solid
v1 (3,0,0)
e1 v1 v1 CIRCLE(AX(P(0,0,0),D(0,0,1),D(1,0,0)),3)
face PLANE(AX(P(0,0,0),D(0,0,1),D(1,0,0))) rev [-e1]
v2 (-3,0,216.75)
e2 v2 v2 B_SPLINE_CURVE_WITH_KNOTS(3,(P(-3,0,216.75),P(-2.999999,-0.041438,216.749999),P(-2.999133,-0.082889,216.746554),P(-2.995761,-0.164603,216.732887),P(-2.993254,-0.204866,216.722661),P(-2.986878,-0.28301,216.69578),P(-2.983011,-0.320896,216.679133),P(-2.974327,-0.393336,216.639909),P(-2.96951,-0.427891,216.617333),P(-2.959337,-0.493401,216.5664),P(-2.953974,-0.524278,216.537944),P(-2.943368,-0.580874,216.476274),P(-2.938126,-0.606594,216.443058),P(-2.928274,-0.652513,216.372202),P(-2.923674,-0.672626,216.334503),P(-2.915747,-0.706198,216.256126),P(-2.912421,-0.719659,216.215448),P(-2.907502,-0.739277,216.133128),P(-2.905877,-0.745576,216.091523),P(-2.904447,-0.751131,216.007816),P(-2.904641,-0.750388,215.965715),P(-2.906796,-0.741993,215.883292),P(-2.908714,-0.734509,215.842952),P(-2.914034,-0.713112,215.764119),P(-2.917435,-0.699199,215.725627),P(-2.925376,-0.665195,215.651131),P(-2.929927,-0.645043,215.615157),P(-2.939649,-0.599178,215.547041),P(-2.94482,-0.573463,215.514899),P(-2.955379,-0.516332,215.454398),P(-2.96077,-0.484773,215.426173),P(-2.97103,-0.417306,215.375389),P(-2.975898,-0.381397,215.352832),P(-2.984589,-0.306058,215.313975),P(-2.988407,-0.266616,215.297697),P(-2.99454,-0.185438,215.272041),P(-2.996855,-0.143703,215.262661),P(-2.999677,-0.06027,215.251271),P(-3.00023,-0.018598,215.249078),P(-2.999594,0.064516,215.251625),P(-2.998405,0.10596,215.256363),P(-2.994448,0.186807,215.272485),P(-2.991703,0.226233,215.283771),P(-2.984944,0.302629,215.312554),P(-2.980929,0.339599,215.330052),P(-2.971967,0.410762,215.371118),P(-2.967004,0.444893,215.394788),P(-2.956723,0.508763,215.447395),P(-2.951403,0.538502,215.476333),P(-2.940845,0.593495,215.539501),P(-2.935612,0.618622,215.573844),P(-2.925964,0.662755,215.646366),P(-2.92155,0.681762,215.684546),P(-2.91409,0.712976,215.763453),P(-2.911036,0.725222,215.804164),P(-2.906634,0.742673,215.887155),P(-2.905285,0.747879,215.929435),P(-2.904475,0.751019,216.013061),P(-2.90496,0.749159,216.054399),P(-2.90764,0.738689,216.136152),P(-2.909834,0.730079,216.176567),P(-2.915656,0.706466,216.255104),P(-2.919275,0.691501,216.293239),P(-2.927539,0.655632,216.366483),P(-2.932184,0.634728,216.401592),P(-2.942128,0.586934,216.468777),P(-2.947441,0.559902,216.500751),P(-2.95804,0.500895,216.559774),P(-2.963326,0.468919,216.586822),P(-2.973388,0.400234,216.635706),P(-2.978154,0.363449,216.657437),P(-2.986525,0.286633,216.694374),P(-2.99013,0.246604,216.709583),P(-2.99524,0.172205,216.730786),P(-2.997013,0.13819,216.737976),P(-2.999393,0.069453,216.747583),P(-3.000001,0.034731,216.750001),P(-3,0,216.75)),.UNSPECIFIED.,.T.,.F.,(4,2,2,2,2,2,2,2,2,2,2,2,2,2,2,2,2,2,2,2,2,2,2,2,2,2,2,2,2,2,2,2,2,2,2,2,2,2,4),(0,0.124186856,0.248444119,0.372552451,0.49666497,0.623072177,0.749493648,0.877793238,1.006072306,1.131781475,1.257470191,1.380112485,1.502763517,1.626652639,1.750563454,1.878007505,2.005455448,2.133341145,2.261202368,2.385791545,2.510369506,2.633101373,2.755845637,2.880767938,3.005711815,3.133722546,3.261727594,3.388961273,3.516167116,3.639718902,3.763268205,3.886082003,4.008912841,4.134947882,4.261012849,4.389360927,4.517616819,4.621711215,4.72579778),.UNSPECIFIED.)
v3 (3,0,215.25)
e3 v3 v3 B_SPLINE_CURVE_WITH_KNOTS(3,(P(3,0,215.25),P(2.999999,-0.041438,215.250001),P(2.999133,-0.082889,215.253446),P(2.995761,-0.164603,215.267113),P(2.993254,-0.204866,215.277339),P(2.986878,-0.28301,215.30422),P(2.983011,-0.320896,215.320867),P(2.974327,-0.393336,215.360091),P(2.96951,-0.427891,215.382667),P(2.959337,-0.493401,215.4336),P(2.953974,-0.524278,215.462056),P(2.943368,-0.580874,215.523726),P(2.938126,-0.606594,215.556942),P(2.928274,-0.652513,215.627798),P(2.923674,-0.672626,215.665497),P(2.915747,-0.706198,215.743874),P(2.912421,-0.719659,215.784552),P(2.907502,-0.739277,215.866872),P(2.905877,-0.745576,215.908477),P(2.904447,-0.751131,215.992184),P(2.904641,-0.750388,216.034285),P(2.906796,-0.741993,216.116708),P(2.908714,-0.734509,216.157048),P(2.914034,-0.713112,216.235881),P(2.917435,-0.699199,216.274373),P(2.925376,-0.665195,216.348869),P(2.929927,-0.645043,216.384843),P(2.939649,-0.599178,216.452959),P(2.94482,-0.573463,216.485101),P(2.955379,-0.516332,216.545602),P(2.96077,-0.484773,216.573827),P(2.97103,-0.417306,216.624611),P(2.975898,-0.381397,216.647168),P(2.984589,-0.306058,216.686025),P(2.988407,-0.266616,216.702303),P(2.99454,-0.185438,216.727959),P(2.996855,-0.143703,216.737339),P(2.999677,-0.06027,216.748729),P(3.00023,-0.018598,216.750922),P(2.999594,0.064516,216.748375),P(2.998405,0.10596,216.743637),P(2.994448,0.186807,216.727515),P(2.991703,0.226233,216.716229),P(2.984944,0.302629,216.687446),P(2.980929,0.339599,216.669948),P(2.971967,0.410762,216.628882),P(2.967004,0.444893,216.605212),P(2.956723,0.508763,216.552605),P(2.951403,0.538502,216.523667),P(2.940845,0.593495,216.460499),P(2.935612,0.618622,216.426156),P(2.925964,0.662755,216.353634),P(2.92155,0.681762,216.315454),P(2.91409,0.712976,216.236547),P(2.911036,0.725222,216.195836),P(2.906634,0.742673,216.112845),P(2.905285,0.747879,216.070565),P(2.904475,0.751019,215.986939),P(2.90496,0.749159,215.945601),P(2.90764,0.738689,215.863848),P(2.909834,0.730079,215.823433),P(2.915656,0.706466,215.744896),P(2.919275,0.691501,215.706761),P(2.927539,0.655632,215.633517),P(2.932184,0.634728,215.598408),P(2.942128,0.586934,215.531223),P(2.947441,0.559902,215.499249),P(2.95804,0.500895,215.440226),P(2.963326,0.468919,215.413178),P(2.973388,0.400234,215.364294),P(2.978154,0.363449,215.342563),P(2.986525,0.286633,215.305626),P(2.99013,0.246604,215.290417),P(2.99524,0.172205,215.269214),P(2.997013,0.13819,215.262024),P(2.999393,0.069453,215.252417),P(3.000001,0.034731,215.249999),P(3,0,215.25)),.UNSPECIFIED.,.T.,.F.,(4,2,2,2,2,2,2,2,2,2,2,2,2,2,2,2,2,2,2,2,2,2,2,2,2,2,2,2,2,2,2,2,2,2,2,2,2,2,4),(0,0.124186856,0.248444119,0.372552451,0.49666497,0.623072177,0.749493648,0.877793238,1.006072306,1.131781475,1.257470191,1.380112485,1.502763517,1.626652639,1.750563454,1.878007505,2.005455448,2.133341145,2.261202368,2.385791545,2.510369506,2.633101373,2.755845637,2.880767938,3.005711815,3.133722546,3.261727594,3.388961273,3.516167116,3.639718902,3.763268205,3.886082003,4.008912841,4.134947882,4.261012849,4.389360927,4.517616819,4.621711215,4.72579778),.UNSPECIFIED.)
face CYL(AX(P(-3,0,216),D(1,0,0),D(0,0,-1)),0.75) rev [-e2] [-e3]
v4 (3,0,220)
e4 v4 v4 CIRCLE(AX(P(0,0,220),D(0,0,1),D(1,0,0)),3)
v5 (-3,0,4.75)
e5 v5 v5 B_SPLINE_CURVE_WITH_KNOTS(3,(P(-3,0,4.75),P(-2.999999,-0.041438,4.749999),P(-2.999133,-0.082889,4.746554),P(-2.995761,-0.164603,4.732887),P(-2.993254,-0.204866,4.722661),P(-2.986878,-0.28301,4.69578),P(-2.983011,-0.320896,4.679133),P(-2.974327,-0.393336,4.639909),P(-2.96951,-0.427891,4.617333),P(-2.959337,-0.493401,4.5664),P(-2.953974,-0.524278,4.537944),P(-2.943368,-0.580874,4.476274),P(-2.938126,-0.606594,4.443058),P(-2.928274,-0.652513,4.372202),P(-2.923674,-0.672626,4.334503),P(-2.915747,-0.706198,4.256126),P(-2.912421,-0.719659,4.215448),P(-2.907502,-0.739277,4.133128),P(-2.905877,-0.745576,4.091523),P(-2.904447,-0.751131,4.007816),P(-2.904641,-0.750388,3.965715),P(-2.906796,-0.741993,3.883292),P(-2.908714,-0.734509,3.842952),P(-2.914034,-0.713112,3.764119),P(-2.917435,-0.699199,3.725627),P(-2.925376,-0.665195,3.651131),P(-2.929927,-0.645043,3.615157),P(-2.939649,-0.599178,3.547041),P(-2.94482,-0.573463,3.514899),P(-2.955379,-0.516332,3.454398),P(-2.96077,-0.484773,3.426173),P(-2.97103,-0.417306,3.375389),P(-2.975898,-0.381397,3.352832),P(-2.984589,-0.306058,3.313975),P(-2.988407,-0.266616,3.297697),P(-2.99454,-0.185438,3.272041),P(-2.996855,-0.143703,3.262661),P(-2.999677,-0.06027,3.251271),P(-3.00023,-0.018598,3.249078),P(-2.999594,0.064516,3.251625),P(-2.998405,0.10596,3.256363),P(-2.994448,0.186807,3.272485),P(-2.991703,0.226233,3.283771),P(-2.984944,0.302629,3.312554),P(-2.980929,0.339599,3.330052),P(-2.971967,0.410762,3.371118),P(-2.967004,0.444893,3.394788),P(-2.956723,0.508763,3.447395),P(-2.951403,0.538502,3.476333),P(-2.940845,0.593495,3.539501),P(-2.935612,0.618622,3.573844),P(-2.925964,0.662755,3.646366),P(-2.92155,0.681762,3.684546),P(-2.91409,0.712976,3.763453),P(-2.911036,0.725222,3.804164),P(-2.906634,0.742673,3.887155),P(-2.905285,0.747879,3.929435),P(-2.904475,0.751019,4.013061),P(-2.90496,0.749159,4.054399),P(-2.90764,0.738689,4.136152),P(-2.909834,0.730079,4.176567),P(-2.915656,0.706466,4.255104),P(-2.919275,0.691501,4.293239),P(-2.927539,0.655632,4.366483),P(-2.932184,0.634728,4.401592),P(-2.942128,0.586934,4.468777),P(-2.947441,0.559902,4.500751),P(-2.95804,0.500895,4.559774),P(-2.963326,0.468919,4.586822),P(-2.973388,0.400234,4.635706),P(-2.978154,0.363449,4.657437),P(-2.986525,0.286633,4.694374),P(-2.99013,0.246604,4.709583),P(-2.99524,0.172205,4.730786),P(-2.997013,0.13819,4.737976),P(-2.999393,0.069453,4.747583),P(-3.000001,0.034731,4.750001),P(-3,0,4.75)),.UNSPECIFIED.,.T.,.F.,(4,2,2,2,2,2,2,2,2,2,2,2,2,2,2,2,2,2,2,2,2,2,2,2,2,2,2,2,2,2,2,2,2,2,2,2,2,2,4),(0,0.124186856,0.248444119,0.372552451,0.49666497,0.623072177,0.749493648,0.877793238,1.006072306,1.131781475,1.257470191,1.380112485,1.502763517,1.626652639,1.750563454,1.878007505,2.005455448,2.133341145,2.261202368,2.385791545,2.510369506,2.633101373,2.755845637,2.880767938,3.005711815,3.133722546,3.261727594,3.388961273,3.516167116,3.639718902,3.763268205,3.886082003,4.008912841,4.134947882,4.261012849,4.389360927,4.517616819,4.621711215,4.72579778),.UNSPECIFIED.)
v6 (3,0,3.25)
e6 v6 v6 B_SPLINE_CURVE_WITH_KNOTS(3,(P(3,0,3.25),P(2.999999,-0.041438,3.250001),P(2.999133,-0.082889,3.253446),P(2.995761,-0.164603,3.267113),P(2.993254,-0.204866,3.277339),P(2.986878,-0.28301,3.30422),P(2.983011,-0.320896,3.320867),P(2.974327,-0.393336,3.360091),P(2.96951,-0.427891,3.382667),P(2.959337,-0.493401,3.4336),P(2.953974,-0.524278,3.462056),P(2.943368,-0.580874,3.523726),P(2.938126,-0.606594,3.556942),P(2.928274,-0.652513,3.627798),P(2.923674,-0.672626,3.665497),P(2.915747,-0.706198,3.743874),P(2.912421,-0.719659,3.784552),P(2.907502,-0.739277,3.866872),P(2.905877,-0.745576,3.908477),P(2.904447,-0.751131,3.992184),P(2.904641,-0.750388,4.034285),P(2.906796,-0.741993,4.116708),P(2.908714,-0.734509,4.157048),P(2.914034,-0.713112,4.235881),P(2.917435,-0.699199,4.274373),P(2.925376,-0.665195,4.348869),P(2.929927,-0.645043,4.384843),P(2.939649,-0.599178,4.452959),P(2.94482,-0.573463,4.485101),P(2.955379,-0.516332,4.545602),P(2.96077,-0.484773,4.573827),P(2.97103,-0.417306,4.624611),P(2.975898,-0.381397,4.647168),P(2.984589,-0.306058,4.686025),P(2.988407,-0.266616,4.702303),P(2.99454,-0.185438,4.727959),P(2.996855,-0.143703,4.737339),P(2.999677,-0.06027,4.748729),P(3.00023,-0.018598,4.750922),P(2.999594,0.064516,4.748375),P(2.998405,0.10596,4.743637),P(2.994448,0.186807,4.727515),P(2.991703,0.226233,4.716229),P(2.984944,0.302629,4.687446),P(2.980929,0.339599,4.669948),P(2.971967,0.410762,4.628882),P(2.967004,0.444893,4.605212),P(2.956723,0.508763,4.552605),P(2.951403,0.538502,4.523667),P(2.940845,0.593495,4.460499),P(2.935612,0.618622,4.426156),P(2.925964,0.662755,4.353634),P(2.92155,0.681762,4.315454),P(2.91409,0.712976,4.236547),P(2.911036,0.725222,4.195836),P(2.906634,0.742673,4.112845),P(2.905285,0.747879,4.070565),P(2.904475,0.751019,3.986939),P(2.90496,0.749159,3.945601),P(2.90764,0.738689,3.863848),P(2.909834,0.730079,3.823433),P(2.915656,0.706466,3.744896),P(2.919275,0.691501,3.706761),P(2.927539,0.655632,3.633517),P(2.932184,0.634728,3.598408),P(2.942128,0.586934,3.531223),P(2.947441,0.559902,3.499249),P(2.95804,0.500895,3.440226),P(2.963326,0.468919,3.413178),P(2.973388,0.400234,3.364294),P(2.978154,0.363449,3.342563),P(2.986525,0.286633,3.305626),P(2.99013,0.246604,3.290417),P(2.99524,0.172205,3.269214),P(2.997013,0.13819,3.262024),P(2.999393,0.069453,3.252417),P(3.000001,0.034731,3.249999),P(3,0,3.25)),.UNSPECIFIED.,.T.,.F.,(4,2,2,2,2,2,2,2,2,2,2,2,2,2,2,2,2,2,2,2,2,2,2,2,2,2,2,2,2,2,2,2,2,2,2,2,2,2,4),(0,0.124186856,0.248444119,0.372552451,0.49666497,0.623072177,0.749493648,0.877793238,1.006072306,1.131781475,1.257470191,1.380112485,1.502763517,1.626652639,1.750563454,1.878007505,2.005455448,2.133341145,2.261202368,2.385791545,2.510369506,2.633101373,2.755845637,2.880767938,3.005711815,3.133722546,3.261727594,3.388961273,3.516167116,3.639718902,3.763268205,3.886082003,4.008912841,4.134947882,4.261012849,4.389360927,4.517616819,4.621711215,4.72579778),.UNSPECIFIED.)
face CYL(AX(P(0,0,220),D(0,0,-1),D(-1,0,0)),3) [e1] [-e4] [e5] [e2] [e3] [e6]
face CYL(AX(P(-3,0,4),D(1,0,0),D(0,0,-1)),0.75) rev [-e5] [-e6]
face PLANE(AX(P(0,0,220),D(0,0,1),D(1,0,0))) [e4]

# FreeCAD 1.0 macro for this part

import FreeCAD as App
import Part
import Sketcher
from FreeCAD import Vector
Q = App.Units.Quantity

doc = App.newDocument("Part")
params = doc.addObject("Spreadsheet::Sheet", "Params")
for row, (alias, value) in enumerate([
    ("sketch1_diameter", "6 mm"),
    ("pad1_length", "220 mm"),
    ("sketch2_diameter", "1.5 mm"),
], start=1):
    params.set(f"A{row}", alias)
    params.set(f"B{row}", "=" + value)
    params.setAlias(f"B{row}", alias)

body = doc.addObject("PartDesign::Body", "Body")

sketch1 = body.newObject("Sketcher::SketchObject", "Sketch")
sketch1.AttachmentSupport = (doc.getObject("XY_Plane"), [""])
sketch1.MapMode = "FlatFace"
sketch1.addGeometry(Part.Circle(Vector(0, 0, 0), Vector(0, 0, 1), 3), False)
sketch1.addConstraint([
    Sketcher.Constraint("Coincident", 0, 3, -1, 1),
    Sketcher.Constraint("Diameter", 0, Q("6 mm")),
])
sketch1.setExpression("Constraints[1]", "Params.sketch1_diameter")
pad1 = body.newObject("PartDesign::Pad", "Pad")
pad1.Profile = sketch1
pad1.setExpression("Length", "Params.pad1_length")

sketch2 = body.newObject("Sketcher::SketchObject", "Sketch001")
sketch2.AttachmentSupport = (doc.getObject("YZ_Plane"), [""])
sketch2.MapMode = "FlatFace"
sketch2.addGeometry([
    Part.Circle(Vector(0, 4, 0), Vector(0, 0, 1), 0.8),
    Part.Circle(Vector(0, 216, 0), Vector(0, 0, 1), 0.8),
], False)
sketch2.addConstraint([
    Sketcher.Constraint("Equal", 0, 1),
    Sketcher.Constraint("PointOnObject", 0, 3, -2),
    Sketcher.Constraint("PointOnObject", 1, 3, -2),
    Sketcher.Constraint("Diameter", 0, Q("1.5 mm")),
    Sketcher.Constraint("DistanceY", -1, 1, 0, 3, Q("4 mm")),
    Sketcher.Constraint("DistanceY", -1, 1, 1, 3, Q("216 mm")),
])
sketch2.setExpression("Constraints[3]", "Params.sketch2_diameter")
pocket1 = body.newObject("PartDesign::Pocket", "Pocket")
pocket1.Profile = sketch2
pocket1.Type = "ThroughAll"
pocket1.Midplane = True

doc.recompute()
